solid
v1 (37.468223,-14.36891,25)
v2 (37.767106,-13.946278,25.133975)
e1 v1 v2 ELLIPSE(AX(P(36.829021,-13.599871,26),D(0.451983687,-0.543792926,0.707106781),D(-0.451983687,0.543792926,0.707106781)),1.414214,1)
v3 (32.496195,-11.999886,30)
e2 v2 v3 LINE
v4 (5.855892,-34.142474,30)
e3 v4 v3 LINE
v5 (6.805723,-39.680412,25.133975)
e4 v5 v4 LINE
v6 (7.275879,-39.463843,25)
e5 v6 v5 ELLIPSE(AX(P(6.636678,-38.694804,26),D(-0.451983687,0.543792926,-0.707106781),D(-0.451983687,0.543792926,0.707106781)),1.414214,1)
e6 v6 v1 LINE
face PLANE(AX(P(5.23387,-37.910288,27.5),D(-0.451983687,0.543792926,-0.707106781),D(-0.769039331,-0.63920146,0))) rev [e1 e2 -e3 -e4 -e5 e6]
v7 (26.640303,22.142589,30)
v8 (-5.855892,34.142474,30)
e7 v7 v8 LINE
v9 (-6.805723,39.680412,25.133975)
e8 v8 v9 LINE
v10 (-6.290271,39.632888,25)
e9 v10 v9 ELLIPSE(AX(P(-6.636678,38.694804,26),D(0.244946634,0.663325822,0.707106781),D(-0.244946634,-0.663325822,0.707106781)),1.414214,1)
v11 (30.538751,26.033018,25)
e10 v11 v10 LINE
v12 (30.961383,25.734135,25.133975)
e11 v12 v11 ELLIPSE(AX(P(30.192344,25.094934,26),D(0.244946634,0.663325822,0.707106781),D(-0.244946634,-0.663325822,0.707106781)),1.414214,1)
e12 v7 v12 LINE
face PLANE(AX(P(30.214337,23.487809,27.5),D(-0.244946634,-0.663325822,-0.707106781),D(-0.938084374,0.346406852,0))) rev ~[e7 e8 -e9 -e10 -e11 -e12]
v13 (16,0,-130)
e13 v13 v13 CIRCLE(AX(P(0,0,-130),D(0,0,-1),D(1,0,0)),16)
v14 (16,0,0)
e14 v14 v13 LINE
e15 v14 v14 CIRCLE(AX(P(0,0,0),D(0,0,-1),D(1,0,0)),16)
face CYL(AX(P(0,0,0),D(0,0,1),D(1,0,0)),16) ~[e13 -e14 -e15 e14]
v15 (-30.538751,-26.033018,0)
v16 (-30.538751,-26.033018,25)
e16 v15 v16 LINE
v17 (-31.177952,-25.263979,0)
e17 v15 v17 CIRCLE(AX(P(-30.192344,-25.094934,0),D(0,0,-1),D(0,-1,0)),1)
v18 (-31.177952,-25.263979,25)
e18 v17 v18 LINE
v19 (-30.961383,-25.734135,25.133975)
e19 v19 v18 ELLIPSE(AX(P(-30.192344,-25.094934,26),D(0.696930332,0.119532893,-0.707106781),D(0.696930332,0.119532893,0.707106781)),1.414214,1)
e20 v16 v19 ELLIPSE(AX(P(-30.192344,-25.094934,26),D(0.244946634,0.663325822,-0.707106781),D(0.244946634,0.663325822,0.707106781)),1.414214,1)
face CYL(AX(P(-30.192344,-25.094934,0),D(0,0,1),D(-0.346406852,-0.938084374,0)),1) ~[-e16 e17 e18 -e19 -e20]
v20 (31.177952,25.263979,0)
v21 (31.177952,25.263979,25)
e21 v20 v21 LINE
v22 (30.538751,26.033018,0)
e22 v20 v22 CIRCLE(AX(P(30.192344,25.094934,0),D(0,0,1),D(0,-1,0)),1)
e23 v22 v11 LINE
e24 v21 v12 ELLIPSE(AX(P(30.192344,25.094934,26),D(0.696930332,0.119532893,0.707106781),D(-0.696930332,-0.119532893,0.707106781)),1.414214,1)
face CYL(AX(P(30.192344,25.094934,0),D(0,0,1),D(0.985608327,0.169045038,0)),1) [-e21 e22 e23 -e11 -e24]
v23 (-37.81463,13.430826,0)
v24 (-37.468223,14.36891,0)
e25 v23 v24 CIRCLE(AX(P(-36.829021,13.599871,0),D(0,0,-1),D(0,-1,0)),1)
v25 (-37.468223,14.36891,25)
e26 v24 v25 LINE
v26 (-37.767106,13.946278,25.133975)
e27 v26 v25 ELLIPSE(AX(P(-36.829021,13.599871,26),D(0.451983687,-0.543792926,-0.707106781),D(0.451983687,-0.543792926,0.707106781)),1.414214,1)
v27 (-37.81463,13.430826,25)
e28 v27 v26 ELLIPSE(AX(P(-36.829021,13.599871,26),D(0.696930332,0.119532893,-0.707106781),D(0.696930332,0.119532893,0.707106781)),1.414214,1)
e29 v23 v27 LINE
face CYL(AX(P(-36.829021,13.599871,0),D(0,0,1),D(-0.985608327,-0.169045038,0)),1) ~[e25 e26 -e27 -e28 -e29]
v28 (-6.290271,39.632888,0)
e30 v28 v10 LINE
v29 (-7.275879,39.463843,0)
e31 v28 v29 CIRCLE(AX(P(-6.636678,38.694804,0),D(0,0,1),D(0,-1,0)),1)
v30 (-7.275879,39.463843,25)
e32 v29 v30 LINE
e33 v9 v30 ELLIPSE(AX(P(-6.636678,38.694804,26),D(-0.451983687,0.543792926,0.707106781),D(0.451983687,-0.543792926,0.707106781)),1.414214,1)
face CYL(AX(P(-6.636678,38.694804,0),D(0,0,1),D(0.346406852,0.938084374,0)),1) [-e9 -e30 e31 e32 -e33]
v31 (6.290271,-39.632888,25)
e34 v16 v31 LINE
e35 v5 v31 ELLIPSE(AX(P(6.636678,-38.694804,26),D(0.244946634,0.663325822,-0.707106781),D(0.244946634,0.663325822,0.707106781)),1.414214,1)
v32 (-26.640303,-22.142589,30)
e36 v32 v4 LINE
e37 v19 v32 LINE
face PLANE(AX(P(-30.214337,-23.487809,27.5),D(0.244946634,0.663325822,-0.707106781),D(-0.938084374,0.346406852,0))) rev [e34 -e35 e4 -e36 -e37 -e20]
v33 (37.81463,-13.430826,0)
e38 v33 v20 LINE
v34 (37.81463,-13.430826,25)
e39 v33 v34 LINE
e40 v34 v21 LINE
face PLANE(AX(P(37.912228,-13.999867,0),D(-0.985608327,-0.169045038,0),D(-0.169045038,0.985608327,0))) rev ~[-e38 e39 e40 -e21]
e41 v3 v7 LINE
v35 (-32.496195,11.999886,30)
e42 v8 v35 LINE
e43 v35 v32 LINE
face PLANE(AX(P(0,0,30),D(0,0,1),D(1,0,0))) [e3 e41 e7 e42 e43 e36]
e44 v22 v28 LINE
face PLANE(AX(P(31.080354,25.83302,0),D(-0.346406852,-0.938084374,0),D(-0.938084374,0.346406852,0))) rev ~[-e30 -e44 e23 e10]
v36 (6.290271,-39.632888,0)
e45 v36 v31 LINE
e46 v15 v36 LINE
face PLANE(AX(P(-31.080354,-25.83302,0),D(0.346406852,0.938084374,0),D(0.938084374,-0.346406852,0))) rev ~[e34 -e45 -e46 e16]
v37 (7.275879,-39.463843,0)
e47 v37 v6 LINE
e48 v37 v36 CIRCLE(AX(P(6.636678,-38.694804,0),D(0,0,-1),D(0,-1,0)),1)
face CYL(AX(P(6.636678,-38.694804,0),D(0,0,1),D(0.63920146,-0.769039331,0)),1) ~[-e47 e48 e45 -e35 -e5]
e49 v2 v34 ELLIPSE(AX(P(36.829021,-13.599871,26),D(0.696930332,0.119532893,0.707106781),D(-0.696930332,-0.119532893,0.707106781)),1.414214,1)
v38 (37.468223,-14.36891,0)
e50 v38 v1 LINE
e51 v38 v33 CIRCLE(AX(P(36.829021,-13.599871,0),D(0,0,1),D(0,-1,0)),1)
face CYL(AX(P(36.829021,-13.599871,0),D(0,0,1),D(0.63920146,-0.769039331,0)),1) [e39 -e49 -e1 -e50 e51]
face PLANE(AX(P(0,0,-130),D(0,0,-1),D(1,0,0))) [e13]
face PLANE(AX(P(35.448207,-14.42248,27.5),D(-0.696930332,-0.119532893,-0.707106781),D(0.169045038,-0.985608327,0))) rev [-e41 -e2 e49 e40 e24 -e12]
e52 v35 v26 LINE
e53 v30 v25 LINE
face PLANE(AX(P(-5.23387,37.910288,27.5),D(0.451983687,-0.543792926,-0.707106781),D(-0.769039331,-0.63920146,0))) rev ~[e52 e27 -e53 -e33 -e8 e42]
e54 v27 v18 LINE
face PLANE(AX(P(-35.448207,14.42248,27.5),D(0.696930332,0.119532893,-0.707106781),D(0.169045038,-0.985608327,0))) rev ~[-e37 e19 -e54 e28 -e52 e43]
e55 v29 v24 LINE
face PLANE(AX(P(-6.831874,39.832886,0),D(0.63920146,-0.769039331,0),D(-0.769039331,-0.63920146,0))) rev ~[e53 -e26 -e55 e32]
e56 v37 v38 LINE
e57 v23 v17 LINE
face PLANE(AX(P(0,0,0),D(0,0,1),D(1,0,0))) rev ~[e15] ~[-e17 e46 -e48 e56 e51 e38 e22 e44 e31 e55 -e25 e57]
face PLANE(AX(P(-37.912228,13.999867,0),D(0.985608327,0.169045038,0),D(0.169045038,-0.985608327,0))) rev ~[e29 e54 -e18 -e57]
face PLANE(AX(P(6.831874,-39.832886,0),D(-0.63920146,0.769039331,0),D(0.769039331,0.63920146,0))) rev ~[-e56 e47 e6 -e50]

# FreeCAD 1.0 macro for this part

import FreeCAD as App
import Part
import Sketcher


def edges_at(feature, points):
    """Names of the edges that pass closest to the given points."""
    edges = feature.Shape.Edges
    near = lambda p: min(range(len(edges)), key=lambda i: edges[i].distToShape(Part.Vertex(*p))[0])
    return sorted({f"Edge{near(p) + 1}" for p in points})

doc = App.newDocument("Part")
body = doc.addObject("PartDesign::Body", "Body")

# Sketch on XY plane
sketch1 = doc.addObject("Sketcher::SketchObject", "Sketch")
body.addObject(sketch1)
sketch1.AttachmentSupport = (doc.XY_Plane, [""])
sketch1.MapMode = "FlatFace"
sketch1.addGeometry([
    Part.LineSegment(App.Vector(7, -40, 0), App.Vector(38, -14, 0)),  # 0
    Part.LineSegment(App.Vector(38, -14, 0), App.Vector(31, 26, 0)),  # 1
    Part.LineSegment(App.Vector(31, 26, 0), App.Vector(-7, 40, 0)),  # 2
    Part.LineSegment(App.Vector(-7, 40, 0), App.Vector(-38, 14, 0)),  # 3
    Part.LineSegment(App.Vector(-38, 14, 0), App.Vector(-31, -26, 0)),  # 4
    Part.LineSegment(App.Vector(-31, -26, 0), App.Vector(7, -40, 0)),  # 5
], False)
sketch1.addConstraint([
    Sketcher.Constraint("Coincident", 0, 2, 1, 1),
    Sketcher.Constraint("Coincident", 1, 2, 2, 1),
    Sketcher.Constraint("Coincident", 2, 2, 3, 1),
    Sketcher.Constraint("Coincident", 3, 2, 4, 1),
    Sketcher.Constraint("Coincident", 4, 2, 5, 1),
    Sketcher.Constraint("Coincident", 5, 2, 0, 1),
    Sketcher.Constraint("Symmetric", 0, 2, 3, 2, -1, 1),
    Sketcher.Constraint("Symmetric", 1, 2, 4, 2, -1, 1),
    Sketcher.Constraint("Symmetric", 2, 2, 5, 2, -1, 1),
    Sketcher.Constraint("Equal", 0, 1),
    Sketcher.Constraint("Equal", 1, 2),
    Sketcher.Constraint("DistanceX", 2, 2, 0, 2, 44.744102),
    Sketcher.Constraint("Distance", 0, 40.414518),
    Sketcher.Constraint("DistanceY", -1, 1, 1, 2, 25.83302),
    Sketcher.Constraint("DistanceY", 3, 2, 2, 2, 25.833019),
])
pad1 = doc.addObject("PartDesign::Pad", "Pad")
body.addObject(pad1)
pad1.Profile = sketch1
pad1.Length = 30

# Sketch on XY plane
sketch2 = doc.addObject("Sketcher::SketchObject", "Sketch001")
body.addObject(sketch2)
sketch2.AttachmentSupport = (doc.XY_Plane, [""])
sketch2.MapMode = "FlatFace"
sketch2.addGeometry(Part.Circle(App.Vector(0, 0, 0), App.Vector(0, 0, 1), 16), False)
sketch2.addConstraint([
    Sketcher.Constraint("Coincident", 0, 3, -1, 1),
    Sketcher.Constraint("Diameter", 0, 32.0),
])
pad2 = doc.addObject("PartDesign::Pad", "Pad001")
body.addObject(pad2)
pad2.Profile = sketch2
pad2.Length = 130
pad2.Reversed = True
doc.recompute()

chamfer = doc.addObject("PartDesign::Chamfer", "Chamfer")
body.addObject(chamfer)
chamfer.Base = (pad2, edges_at(pad2, [
    (22.372, -26.916, 30),
    (-12.124, -32.833, 30),
    (-34.496, -5.917, 30),
    (-22.372, 26.916, 30),
    (12.124, 32.833, 30),
    (34.496, 5.917, 30),
]))
chamfer.Size = 5
doc.recompute()

fillet = doc.addObject("PartDesign::Fillet", "Fillet")
body.addObject(fillet)
fillet.Base = (chamfer, edges_at(chamfer, [
    (6.832, -39.833, 12.5),
    (37.912, -14, 12.5),
    (31.08, 25.833, 12.5),
    (-6.832, 39.833, 12.5),
    (-37.912, 14, 12.5),
    (-31.08, -25.833, 12.5),
]))
fillet.Radius = 1

doc.recompute()
